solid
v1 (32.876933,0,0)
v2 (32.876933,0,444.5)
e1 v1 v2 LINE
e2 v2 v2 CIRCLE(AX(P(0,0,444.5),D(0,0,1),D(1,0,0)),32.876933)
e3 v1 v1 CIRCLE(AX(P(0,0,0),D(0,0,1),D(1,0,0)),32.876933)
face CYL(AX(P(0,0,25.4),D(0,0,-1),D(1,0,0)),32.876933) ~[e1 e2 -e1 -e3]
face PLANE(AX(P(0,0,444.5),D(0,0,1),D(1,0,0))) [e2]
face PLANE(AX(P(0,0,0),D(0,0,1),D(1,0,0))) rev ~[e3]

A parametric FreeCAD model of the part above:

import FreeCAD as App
import Part
import Sketcher

V = App.Vector
Q = App.Units.Quantity

doc = App.newDocument("Part")
body = doc.addObject("PartDesign::Body", "Body")

# Sketch on XY plane
sketch1 = body.newObject("Sketcher::SketchObject", "Sketch")
sketch1.AttachmentSupport = (doc.getObject("XY_Plane"), [""])
sketch1.MapMode = "FlatFace"
sketch1.addGeometry(Part.Circle(V(0, 0, 0), V(0, 0, 1), 32.876933), False)
sketch1.addConstraint(Sketcher.Constraint("Coincident", 0, 3, -1, 1))
sketch1.addConstraint(Sketcher.Constraint("Diameter", 0, Q("65.753866 mm")))
pad1 = body.newObject("PartDesign::Pad", "Pad")
pad1.Profile = sketch1
pad1.Length = Q("1 in")

# Sketch on XY plane
sketch2 = body.newObject("Sketcher::SketchObject", "Sketch001")
sketch2.AttachmentSupport = (doc.getObject("XY_Plane"), [""])
sketch2.MapMode = "FlatFace"
sketch2.AttachmentOffset = App.Placement(V(0, 0, 1 * 25.4), App.Rotation())
sketch2.addGeometry(Part.Circle(V(0, 0, 0), V(0, 0, 1), 32.876933), False)
sketch2.addConstraint(Sketcher.Constraint("Coincident", 0, 3, -1, 1))
sketch2.addConstraint(Sketcher.Constraint("Diameter", 0, Q("65.753866 mm")))
pad2 = body.newObject("PartDesign::Pad", "Pad001")
pad2.Profile = sketch2
pad2.Length = Q("16.5 in")

doc.recompute()
